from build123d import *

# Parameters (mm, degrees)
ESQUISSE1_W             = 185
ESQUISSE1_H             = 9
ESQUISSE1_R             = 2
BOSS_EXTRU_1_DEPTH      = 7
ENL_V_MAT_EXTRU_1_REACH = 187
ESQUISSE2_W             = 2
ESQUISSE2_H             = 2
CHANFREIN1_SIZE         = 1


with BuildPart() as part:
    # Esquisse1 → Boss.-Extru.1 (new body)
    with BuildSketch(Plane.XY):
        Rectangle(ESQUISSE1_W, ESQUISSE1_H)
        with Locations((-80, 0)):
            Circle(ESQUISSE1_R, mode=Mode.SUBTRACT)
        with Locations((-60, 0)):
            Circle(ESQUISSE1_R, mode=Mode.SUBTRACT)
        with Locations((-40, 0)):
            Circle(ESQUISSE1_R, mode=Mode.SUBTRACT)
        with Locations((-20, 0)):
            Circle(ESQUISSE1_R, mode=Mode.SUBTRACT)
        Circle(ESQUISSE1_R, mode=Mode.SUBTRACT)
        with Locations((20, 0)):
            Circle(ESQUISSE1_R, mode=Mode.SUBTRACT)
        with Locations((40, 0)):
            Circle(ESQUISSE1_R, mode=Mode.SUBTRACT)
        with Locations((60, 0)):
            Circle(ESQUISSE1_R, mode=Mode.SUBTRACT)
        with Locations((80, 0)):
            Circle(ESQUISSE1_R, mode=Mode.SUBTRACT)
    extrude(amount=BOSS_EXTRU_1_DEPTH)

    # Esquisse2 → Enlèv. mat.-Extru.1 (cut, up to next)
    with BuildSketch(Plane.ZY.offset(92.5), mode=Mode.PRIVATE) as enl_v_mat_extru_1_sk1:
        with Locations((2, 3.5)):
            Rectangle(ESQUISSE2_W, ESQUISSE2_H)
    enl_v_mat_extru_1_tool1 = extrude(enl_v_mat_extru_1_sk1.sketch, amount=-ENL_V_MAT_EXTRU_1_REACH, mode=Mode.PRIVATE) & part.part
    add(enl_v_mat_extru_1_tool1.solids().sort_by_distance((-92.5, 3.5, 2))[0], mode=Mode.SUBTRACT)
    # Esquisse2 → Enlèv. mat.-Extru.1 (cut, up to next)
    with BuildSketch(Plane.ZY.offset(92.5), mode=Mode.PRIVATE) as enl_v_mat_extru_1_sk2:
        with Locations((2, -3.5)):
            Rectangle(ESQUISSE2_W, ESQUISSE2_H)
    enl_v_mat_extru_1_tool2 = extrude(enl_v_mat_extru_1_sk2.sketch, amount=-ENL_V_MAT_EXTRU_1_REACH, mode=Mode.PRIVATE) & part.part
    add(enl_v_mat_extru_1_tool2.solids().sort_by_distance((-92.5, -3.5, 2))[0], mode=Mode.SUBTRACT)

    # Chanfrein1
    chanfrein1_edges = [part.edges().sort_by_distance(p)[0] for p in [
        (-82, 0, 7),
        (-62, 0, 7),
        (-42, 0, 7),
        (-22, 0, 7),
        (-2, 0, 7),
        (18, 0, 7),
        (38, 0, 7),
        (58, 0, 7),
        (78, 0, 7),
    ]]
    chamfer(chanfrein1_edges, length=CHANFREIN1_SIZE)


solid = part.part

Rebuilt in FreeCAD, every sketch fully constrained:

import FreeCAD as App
import Part
import Sketcher
from FreeCAD import Vector
Q = App.Units.Quantity


def edges_at(feature, points):
    """Names of the edges that pass closest to the given points."""
    edges = feature.Shape.Edges
    near = lambda p: min(range(len(edges)), key=lambda i: edges[i].distToShape(Part.Vertex(*p))[0])
    return sorted({f"Edge{near(p) + 1}" for p in points})


def add_polygon(sketch, points):
    """Adds a closed chain of lines whose ends are joined by coincident constraints."""
    first, n = sketch.GeometryCount, len(points)
    for a, b in zip(points, points[1:] + points[:1]):
        sketch.addGeometry(Part.LineSegment(App.Vector(*a, 0), App.Vector(*b, 0)), False)
    for i in range(n):
        sketch.addConstraint(Sketcher.Constraint("Coincident", first + i, 2, first + (i + 1) % n, 1))

doc = App.newDocument("Part")
body = doc.addObject("PartDesign::Body", "Body")

# Sketch on XY plane
sketch1 = doc.addObject("Sketcher::SketchObject", "Sketch")
body.addObject(sketch1)
sketch1.AttachmentSupport = (doc.XY_Plane, [""])
sketch1.MapMode = "FlatFace"
add_polygon(sketch1, [(-92.5, 4.5), (-92.5, -4.5), (92.5, -4.5), (92.5, 4.5)])  # lines 0-3
sketch1.addGeometry(Part.Circle(Vector(-80, 0, 0), Vector(0, 0, 1), 2), False)  # 4
sketch1.addGeometry(Part.Circle(Vector(-60, 0, 0), Vector(0, 0, 1), 2), False)  # 5
sketch1.addGeometry(Part.Circle(Vector(-40, 0, 0), Vector(0, 0, 1), 2), False)  # 6
sketch1.addGeometry(Part.Circle(Vector(-20, 0, 0), Vector(0, 0, 1), 2), False)  # 7
sketch1.addGeometry(Part.Circle(Vector(0, 0, 0), Vector(0, 0, 1), 2), False)  # 8
sketch1.addGeometry(Part.Circle(Vector(20, 0, 0), Vector(0, 0, 1), 2), False)  # 9
sketch1.addGeometry(Part.Circle(Vector(40, 0, 0), Vector(0, 0, 1), 2), False)  # 10
sketch1.addGeometry(Part.Circle(Vector(60, 0, 0), Vector(0, 0, 1), 2), False)  # 11
sketch1.addGeometry(Part.Circle(Vector(80, 0, 0), Vector(0, 0, 1), 2), False)  # 12
sketch1.addConstraint(Sketcher.Constraint("Vertical", 0))
sketch1.addConstraint(Sketcher.Constraint("Horizontal", 1))
sketch1.addConstraint(Sketcher.Constraint("Vertical", 2))
sketch1.addConstraint(Sketcher.Constraint("Horizontal", 3))
sketch1.addConstraint(Sketcher.Constraint("Coincident", 8, 3, -1, 1))
sketch1.addConstraint(Sketcher.Constraint("Equal", 4, 5))
sketch1.addConstraint(Sketcher.Constraint("Equal", 5, 6))
sketch1.addConstraint(Sketcher.Constraint("Equal", 6, 7))
sketch1.addConstraint(Sketcher.Constraint("Equal", 7, 8))
sketch1.addConstraint(Sketcher.Constraint("Equal", 8, 9))
sketch1.addConstraint(Sketcher.Constraint("Equal", 9, 10))
sketch1.addConstraint(Sketcher.Constraint("Equal", 10, 11))
sketch1.addConstraint(Sketcher.Constraint("Equal", 11, 12))
sketch1.addConstraint(Sketcher.Constraint("Symmetric", 7, 3, 9, 3, -1, 1))
sketch1.addConstraint(Sketcher.Constraint("Symmetric", 6, 3, 10, 3, -1, 1))
sketch1.addConstraint(Sketcher.Constraint("Symmetric", 5, 3, 11, 3, -1, 1))
sketch1.addConstraint(Sketcher.Constraint("Symmetric", 4, 3, 12, 3, -1, 1))
sketch1.addConstraint(Sketcher.Constraint("Symmetric", 0, 2, 2, 2, -1, 1))
sketch1.addConstraint(Sketcher.Constraint("PointOnObject", 4, 3, -1))
sketch1.addConstraint(Sketcher.Constraint("PointOnObject", 5, 3, -1))
sketch1.addConstraint(Sketcher.Constraint("PointOnObject", 6, 3, -1))
sketch1.addConstraint(Sketcher.Constraint("PointOnObject", 7, 3, -1))
sketch1.addConstraint(Sketcher.Constraint("Diameter", 4, Q("4 mm")))
sketch1.addConstraint(Sketcher.Constraint("DistanceX", 1, 1, 1, 2, Q("185 mm")))
sketch1.addConstraint(Sketcher.Constraint("DistanceY", 0, 2, 0, 1, Q("9 mm")))
sketch1.addConstraint(Sketcher.Constraint("DistanceX", 4, 3, -1, 1, Q("80 mm")))
sketch1.addConstraint(Sketcher.Constraint("DistanceX", 5, 3, -1, 1, Q("60 mm")))
sketch1.addConstraint(Sketcher.Constraint("DistanceX", 6, 3, -1, 1, Q("40 mm")))
sketch1.addConstraint(Sketcher.Constraint("DistanceX", 7, 3, -1, 1, Q("20 mm")))
pad1 = doc.addObject("PartDesign::Pad", "Pad")
body.addObject(pad1)
pad1.Profile = sketch1
pad1.Length = 7

# Sketch on YZ plane
sketch2 = doc.addObject("Sketcher::SketchObject", "Sketch001")
body.addObject(sketch2)
sketch2.AttachmentSupport = (doc.YZ_Plane, [""])
sketch2.MapMode = "FlatFace"
sketch2.AttachmentOffset = App.Placement(Vector(0, 0, -92.5), App.Rotation())
add_polygon(sketch2, [(4.5, 1), (2.5, 1), (2.5, 3), (4.5, 3)])  # lines 0-3
sketch2.addConstraint(Sketcher.Constraint("Horizontal", 0))
sketch2.addConstraint(Sketcher.Constraint("Vertical", 1))
sketch2.addConstraint(Sketcher.Constraint("Horizontal", 2))
sketch2.addConstraint(Sketcher.Constraint("Vertical", 3))
sketch2.addConstraint(Sketcher.Constraint("Equal", 2, 1))
sketch2.addConstraint(Sketcher.Constraint("DistanceX", 0, 2, 0, 1, Q("2 mm")))
sketch2.addConstraint(Sketcher.Constraint("DistanceY", -1, 1, 0, 2, Q("1 mm")))
sketch2.addConstraint(Sketcher.Constraint("DistanceX", -1, 1, 0, 2, Q("2.5 mm")))
pocket1 = doc.addObject("PartDesign::Pocket", "Pocket")
body.addObject(pocket1)
pocket1.Profile = sketch2
pocket1.Type = "UpToFirst"
pocket1.Reversed = True

# Sketch on YZ plane
sketch3 = doc.addObject("Sketcher::SketchObject", "Sketch002")
body.addObject(sketch3)
sketch3.AttachmentSupport = (doc.YZ_Plane, [""])
sketch3.MapMode = "FlatFace"
sketch3.AttachmentOffset = App.Placement(Vector(0, 0, -92.5), App.Rotation())
add_polygon(sketch3, [(-2.5, 1), (-4.5, 1), (-4.5, 3), (-2.5, 3)])  # lines 0-3
sketch3.addConstraint(Sketcher.Constraint("Horizontal", 0))
sketch3.addConstraint(Sketcher.Constraint("Vertical", 1))
sketch3.addConstraint(Sketcher.Constraint("Horizontal", 2))
sketch3.addConstraint(Sketcher.Constraint("Vertical", 3))
sketch3.addConstraint(Sketcher.Constraint("Equal", 2, 1))
sketch3.addConstraint(Sketcher.Constraint("DistanceX", 0, 2, 0, 1, Q("2 mm")))
sketch3.addConstraint(Sketcher.Constraint("DistanceY", -1, 1, 0, 2, Q("1 mm")))
sketch3.addConstraint(Sketcher.Constraint("DistanceX", 0, 2, -1, 1, Q("4.5 mm")))
pocket2 = doc.addObject("PartDesign::Pocket", "Pocket001")
body.addObject(pocket2)
pocket2.Profile = sketch3
pocket2.Type = "UpToFirst"
pocket2.Reversed = True
doc.recompute()

chamfer = doc.addObject("PartDesign::Chamfer", "Chamfer")
body.addObject(chamfer)
chamfer.Base = (pocket2, edges_at(pocket2, [
    (-82, 0, 7),
    (-62, 0, 7),
    (-42, 0, 7),
    (-22, 0, 7),
    (-2, 0, 7),
    (18, 0, 7),
    (38, 0, 7),
    (58, 0, 7),
    (78, 0, 7),
]))
chamfer.Size = 1

doc.recompute()
